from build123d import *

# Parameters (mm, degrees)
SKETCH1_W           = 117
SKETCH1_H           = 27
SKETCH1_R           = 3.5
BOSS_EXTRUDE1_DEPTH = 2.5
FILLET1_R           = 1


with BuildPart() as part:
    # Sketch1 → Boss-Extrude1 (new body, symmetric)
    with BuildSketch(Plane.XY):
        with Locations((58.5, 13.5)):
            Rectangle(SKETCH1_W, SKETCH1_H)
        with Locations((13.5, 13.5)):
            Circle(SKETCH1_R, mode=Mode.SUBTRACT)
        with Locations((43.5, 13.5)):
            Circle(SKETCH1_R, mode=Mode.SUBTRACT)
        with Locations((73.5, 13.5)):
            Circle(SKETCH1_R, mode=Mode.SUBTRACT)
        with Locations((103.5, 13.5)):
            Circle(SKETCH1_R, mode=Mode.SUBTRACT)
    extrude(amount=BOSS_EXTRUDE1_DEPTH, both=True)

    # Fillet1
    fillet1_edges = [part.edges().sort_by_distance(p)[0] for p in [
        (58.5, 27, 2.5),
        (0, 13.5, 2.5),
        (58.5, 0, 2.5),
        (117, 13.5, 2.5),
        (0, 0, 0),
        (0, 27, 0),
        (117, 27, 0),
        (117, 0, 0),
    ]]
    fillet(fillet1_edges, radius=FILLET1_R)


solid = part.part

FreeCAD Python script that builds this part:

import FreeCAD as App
import Part
import Sketcher

V = App.Vector


def edges_at(feature, points):
    """Names of the edges that pass closest to the given points."""
    edges = feature.Shape.Edges
    near = lambda p: min(range(len(edges)), key=lambda i: edges[i].distToShape(Part.Vertex(*p))[0])
    return sorted({f"Edge{near(p) + 1}" for p in points})

doc = App.newDocument("Part")
body = doc.addObject("PartDesign::Body", "Body")

sketch1 = doc.addObject("Sketcher::SketchObject", "Sketch")
body.addObject(sketch1)
sketch1.AttachmentSupport = (doc.XY_Plane, [""])
sketch1.MapMode = "FlatFace"
sketch1.addGeometry(Part.LineSegment(V(0, 27, 0), V(0, 0, 0)), False)
sketch1.addGeometry(Part.LineSegment(V(0, 0, 0), V(117, 0, 0)), False)
sketch1.addGeometry(Part.LineSegment(V(117, 0, 0), V(117, 27, 0)), False)
sketch1.addGeometry(Part.LineSegment(V(117, 27, 0), V(0, 27, 0)), False)
sketch1.addGeometry(Part.Circle(V(13.5, 13.5, 0), V(0, 0, 1), 3.5), False)
sketch1.addGeometry(Part.Circle(V(43.5, 13.5, 0), V(0, 0, 1), 3.5), False)
sketch1.addGeometry(Part.Circle(V(73.5, 13.5, 0), V(0, 0, 1), 3.5), False)
sketch1.addGeometry(Part.Circle(V(103.5, 13.5, 0), V(0, 0, 1), 3.5), False)
sketch1.addConstraint(Sketcher.Constraint("Coincident", 0, 2, 1, 1))
sketch1.addConstraint(Sketcher.Constraint("Coincident", 1, 2, 2, 1))
sketch1.addConstraint(Sketcher.Constraint("Coincident", 2, 2, 3, 1))
sketch1.addConstraint(Sketcher.Constraint("Coincident", 3, 2, 0, 1))
sketch1.addConstraint(Sketcher.Constraint("Vertical", 0))
sketch1.addConstraint(Sketcher.Constraint("Horizontal", 1))
sketch1.addConstraint(Sketcher.Constraint("Vertical", 2))
sketch1.addConstraint(Sketcher.Constraint("Horizontal", 3))
sketch1.addConstraint(Sketcher.Constraint("Coincident", 0, 2, -1, 1))
sketch1.addConstraint(Sketcher.Constraint("Equal", 4, 5))
sketch1.addConstraint(Sketcher.Constraint("Equal", 5, 6))
sketch1.addConstraint(Sketcher.Constraint("Equal", 6, 7))
sketch1.addConstraint(Sketcher.Constraint("Horizontal", 4, 3, 5, 3))
sketch1.addConstraint(Sketcher.Constraint("Horizontal", 5, 3, 6, 3))
sketch1.addConstraint(Sketcher.Constraint("Horizontal", 6, 3, 7, 3))
sketch1.addConstraint(Sketcher.Constraint("Diameter", 4, 7.0))
sketch1.addConstraint(Sketcher.Constraint("DistanceX", 1, 1, 1, 2, 117.0))
sketch1.addConstraint(Sketcher.Constraint("DistanceY", 0, 2, 0, 1, 27.0))
sketch1.addConstraint(Sketcher.Constraint("DistanceX", 4, 3, 5, 3, 30.0))
sketch1.addConstraint(Sketcher.Constraint("DistanceX", 5, 3, 6, 3, 30.0))
sketch1.addConstraint(Sketcher.Constraint("DistanceX", 6, 3, 7, 3, 30.0))
sketch1.addConstraint(Sketcher.Constraint("DistanceX", -1, 1, 4, 3, 13.5))
sketch1.addConstraint(Sketcher.Constraint("DistanceY", -1, 1, 4, 3, 13.5))
pad1 = doc.addObject("PartDesign::Pad", "Pad")
body.addObject(pad1)
pad1.Profile = sketch1
pad1.Length = 5
pad1.Midplane = True
doc.recompute()

fillet = doc.addObject("PartDesign::Fillet", "Fillet")
body.addObject(fillet)
fillet.Base = (pad1, edges_at(pad1, [
    (58.5, 27, 2.5),
    (0, 13.5, 2.5),
    (58.5, 0, 2.5),
    (117, 13.5, 2.5),
    (0, 0, 0),
    (0, 27, 0),
    (117, 27, 0),
    (117, 0, 0),
]))
fillet.Radius = 1

doc.recompute()
